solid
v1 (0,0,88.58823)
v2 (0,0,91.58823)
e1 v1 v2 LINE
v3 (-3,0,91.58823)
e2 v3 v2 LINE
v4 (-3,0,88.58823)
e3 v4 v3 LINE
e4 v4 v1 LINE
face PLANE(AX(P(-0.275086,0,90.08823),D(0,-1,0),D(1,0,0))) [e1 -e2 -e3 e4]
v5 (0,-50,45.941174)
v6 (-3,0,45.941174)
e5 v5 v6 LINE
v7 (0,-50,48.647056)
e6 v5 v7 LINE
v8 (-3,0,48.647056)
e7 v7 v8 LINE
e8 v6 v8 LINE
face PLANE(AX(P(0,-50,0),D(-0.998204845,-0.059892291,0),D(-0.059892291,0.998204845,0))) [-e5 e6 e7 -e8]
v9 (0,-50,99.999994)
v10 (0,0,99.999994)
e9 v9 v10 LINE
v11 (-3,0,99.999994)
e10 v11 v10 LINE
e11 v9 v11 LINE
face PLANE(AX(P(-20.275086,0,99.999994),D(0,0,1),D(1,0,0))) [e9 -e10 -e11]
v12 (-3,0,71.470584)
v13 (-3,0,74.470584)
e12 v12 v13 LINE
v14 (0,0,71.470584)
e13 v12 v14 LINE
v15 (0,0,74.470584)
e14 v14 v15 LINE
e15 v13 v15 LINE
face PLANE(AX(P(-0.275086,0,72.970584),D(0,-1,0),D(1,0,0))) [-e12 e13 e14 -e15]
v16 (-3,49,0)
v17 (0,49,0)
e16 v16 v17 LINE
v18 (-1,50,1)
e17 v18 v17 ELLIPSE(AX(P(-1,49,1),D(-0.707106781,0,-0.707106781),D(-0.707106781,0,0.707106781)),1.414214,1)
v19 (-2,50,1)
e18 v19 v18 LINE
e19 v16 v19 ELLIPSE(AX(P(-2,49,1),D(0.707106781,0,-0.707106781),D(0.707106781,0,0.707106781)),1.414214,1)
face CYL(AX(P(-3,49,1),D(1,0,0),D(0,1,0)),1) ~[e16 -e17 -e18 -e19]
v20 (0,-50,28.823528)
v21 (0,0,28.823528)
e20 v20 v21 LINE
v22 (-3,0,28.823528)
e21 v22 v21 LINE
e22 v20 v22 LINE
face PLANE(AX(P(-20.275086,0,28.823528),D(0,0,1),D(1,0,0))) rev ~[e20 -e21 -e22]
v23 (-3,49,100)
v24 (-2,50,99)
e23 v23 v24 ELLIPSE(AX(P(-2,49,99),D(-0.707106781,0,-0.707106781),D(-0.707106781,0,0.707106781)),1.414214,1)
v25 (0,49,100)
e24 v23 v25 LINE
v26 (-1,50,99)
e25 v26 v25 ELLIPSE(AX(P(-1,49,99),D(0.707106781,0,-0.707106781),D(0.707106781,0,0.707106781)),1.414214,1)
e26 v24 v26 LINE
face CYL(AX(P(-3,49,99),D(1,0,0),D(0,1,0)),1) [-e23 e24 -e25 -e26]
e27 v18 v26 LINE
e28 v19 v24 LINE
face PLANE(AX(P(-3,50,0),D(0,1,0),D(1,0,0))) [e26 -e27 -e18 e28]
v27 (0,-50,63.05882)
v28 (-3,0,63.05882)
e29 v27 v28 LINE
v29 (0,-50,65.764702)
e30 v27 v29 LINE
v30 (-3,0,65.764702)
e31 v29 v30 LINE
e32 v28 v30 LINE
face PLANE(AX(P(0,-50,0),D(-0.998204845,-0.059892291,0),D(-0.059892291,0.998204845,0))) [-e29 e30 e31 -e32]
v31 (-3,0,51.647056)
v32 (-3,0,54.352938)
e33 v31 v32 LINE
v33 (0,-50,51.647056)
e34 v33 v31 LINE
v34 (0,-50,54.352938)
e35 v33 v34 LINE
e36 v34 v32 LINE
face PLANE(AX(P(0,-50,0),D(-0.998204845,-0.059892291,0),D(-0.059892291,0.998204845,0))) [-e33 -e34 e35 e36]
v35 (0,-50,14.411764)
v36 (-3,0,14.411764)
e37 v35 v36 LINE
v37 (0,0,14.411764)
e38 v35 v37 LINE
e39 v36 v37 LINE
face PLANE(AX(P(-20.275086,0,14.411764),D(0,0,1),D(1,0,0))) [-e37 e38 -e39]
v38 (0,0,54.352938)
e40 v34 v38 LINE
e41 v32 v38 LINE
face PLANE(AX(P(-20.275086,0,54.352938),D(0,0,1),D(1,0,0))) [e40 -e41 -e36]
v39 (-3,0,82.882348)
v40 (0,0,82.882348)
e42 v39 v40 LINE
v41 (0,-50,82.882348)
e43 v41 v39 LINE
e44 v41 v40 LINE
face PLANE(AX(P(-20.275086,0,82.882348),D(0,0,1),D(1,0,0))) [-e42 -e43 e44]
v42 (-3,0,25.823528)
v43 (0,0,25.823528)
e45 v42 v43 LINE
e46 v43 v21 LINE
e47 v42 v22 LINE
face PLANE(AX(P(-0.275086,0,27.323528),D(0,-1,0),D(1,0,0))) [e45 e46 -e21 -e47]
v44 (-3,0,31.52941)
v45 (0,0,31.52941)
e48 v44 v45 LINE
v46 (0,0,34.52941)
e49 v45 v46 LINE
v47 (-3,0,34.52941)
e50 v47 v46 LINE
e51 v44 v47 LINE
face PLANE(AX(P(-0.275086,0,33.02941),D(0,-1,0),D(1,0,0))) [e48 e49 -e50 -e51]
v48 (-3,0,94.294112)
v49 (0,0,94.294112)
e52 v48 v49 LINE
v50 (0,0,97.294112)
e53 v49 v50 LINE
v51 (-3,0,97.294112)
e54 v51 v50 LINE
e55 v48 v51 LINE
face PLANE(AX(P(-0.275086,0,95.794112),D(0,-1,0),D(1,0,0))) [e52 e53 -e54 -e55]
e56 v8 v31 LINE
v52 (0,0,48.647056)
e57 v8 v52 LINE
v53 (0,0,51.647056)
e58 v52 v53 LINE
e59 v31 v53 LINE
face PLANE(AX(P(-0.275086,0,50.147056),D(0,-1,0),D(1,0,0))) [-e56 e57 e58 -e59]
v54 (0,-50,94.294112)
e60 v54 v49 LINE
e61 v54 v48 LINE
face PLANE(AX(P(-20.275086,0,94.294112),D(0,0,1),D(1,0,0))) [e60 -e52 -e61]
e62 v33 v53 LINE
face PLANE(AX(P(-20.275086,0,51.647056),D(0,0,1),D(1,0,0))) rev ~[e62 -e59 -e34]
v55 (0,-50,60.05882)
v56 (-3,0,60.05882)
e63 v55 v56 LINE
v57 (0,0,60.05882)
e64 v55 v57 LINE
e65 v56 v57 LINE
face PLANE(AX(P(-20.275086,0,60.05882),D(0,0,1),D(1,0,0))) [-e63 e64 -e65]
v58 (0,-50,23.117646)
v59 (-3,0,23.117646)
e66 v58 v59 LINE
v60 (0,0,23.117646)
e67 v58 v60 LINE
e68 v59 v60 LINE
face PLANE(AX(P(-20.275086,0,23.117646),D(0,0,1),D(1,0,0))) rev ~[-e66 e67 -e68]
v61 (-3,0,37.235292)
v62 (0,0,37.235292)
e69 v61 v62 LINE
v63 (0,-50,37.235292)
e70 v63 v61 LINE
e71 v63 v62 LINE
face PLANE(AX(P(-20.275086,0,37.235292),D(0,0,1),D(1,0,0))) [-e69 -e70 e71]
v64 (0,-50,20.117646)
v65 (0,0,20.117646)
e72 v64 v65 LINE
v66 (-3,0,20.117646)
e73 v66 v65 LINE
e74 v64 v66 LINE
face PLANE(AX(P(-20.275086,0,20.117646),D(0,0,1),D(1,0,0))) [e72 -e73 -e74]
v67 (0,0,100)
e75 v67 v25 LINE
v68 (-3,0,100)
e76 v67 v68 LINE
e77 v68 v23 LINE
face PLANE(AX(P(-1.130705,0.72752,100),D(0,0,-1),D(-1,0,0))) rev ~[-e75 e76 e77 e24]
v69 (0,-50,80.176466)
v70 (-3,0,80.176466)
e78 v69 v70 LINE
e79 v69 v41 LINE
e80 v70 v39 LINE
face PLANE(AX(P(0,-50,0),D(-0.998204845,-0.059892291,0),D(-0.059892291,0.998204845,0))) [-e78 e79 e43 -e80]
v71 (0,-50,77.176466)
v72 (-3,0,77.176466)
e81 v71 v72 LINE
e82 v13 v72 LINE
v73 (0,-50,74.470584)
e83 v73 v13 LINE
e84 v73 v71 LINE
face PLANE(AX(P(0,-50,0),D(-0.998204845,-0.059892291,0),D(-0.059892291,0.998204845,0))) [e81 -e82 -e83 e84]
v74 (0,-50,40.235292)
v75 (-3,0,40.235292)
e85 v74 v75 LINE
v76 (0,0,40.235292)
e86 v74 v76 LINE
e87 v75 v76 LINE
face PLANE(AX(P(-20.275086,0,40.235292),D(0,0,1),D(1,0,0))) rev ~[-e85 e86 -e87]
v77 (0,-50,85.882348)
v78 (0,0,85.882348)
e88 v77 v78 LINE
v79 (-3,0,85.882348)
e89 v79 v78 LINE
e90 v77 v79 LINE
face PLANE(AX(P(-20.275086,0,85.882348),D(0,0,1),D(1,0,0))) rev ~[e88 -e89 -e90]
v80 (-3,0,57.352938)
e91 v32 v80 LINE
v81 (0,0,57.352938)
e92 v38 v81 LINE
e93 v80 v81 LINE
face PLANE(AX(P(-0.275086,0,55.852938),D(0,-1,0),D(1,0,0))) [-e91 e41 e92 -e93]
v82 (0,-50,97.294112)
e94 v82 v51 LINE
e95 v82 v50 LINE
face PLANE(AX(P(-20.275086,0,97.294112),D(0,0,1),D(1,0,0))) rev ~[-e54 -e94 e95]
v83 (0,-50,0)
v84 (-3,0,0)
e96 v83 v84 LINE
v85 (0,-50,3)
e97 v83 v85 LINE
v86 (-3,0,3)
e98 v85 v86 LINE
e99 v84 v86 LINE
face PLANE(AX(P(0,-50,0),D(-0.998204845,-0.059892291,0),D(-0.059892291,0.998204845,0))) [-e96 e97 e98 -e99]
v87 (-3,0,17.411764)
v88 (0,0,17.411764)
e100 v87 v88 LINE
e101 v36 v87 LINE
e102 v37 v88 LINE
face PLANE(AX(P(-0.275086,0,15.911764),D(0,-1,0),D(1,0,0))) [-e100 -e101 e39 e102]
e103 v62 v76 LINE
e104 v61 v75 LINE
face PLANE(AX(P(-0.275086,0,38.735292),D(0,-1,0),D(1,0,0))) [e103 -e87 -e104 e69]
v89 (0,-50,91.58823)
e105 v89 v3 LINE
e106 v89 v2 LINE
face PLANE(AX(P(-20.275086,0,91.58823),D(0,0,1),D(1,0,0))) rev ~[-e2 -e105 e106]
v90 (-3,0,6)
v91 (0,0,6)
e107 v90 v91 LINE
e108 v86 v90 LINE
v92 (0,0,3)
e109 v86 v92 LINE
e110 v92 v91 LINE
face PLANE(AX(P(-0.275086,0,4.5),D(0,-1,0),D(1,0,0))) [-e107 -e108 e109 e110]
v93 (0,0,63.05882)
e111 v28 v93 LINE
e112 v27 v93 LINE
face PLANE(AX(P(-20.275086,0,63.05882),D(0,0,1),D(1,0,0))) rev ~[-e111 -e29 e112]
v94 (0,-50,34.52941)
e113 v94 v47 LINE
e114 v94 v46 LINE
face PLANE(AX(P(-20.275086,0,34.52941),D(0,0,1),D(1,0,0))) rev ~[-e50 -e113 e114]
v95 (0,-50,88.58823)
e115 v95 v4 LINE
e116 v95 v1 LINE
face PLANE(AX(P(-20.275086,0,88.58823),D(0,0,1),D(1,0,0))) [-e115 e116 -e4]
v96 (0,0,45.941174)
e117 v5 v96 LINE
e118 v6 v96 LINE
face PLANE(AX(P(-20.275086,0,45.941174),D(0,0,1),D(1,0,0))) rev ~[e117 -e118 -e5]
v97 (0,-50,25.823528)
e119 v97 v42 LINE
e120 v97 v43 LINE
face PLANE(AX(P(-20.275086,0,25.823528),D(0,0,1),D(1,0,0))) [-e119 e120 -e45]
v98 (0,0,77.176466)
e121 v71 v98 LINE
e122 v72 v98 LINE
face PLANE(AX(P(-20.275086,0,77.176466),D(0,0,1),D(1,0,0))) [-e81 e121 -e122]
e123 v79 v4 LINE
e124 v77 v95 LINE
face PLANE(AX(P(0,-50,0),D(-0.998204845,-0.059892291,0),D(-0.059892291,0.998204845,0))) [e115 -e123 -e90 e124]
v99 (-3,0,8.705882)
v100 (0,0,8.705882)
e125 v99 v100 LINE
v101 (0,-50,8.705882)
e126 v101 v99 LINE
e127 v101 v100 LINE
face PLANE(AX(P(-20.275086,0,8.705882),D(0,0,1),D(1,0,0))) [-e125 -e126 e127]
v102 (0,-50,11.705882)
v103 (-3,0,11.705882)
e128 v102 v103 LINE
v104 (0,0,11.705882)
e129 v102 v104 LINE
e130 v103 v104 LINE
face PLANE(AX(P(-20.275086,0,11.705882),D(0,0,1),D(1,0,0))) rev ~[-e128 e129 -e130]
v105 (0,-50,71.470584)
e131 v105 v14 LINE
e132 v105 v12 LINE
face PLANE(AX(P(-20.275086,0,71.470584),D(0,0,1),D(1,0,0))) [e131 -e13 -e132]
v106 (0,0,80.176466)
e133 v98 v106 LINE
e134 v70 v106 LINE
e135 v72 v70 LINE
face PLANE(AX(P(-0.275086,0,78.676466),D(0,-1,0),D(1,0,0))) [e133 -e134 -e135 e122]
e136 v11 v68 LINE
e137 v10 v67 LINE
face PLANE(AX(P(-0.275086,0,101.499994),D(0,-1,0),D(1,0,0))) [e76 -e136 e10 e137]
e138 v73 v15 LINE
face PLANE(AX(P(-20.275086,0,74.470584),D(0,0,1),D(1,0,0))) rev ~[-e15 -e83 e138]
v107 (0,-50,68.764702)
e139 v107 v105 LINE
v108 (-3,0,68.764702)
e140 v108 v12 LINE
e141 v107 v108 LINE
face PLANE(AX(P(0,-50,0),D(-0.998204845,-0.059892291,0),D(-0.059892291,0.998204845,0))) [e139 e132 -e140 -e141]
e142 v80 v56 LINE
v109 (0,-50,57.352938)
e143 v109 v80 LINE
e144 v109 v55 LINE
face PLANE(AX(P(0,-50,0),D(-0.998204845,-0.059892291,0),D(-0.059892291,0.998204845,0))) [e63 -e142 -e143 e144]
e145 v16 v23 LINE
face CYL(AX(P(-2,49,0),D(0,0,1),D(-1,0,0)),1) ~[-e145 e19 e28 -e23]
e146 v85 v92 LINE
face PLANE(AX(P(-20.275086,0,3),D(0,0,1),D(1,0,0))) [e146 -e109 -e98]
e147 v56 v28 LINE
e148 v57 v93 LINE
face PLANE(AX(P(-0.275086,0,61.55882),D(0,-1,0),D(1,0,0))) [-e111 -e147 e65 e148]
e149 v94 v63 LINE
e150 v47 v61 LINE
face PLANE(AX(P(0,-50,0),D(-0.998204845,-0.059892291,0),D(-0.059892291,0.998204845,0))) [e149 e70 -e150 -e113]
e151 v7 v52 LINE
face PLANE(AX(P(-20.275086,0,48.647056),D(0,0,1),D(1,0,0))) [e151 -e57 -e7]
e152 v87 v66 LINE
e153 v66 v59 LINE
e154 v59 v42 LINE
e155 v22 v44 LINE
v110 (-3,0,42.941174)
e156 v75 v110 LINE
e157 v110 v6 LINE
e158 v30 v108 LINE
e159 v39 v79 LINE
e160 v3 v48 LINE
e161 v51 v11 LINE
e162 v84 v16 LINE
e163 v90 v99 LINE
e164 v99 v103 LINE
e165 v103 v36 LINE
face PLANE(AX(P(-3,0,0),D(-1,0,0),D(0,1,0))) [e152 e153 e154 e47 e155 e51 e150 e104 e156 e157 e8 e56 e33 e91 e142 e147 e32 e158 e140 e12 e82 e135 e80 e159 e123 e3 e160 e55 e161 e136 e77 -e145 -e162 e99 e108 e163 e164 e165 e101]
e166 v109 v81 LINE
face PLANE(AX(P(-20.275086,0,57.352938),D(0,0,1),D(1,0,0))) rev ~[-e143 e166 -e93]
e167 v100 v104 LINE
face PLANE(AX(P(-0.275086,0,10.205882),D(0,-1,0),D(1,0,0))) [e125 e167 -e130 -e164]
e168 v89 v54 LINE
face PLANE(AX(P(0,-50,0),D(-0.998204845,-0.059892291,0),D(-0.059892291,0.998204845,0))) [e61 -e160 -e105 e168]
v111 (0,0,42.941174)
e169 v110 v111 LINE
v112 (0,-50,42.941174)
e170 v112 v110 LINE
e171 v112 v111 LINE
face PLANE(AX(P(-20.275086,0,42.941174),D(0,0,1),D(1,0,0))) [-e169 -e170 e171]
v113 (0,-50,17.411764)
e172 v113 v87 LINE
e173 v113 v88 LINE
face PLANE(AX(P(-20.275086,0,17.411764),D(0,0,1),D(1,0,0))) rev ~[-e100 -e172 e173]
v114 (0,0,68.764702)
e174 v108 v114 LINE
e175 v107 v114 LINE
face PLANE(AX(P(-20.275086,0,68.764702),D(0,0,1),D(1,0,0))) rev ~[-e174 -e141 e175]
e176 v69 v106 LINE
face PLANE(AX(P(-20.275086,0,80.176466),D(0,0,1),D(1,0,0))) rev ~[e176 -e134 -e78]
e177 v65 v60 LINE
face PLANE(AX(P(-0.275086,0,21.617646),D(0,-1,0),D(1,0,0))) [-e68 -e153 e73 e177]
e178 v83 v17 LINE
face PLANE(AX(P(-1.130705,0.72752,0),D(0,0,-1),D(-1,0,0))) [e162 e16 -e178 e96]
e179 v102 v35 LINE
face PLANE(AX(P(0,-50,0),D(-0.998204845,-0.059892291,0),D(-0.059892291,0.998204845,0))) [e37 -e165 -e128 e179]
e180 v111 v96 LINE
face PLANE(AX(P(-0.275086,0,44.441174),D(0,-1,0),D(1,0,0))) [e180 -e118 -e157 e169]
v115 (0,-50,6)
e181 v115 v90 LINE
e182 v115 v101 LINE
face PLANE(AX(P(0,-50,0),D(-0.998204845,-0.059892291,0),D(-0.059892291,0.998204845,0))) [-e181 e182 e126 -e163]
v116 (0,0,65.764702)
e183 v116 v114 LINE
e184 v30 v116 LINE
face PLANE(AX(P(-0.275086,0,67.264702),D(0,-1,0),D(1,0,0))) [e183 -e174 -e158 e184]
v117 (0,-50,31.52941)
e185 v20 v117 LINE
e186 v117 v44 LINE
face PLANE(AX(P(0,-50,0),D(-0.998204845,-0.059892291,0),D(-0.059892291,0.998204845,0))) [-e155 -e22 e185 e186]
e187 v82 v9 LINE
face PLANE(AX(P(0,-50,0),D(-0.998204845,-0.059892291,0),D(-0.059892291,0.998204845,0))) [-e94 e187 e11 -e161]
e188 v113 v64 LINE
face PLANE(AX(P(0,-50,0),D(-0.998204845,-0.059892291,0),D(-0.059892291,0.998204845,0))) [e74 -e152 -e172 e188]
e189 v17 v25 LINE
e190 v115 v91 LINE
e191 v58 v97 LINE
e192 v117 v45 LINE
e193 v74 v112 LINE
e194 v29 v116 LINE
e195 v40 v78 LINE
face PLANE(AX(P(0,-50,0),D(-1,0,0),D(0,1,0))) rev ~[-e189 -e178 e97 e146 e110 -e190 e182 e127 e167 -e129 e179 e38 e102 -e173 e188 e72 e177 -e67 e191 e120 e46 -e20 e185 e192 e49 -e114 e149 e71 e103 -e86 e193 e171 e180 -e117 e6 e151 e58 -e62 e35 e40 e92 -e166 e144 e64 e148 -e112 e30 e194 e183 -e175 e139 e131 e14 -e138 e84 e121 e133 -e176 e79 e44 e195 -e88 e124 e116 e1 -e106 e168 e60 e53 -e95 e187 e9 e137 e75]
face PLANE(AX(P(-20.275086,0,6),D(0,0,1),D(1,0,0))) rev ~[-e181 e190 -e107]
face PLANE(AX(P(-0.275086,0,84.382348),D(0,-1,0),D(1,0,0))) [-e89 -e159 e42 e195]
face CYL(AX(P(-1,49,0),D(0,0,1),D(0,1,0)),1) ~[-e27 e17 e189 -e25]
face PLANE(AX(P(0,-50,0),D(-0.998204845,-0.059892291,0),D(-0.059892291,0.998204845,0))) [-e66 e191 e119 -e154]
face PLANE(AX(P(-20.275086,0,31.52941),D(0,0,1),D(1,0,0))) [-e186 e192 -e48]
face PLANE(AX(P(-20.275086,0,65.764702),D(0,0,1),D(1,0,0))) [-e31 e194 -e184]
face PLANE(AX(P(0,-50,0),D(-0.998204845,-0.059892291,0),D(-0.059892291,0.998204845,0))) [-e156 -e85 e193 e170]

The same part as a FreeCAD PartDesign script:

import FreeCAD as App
import Part
import Sketcher

V = App.Vector


def edges_at(feature, points):
    """Names of the edges that pass closest to the given points."""
    edges = feature.Shape.Edges
    near = lambda p: min(range(len(edges)), key=lambda i: edges[i].distToShape(Part.Vertex(*p))[0])
    return sorted({f"Edge{near(p) + 1}" for p in points})


def add_polygon(sketch, points):
    """Adds a closed chain of lines whose ends are joined by coincident constraints."""
    first, n = sketch.GeometryCount, len(points)
    for a, b in zip(points, points[1:] + points[:1]):
        sketch.addGeometry(Part.LineSegment(App.Vector(*a, 0), App.Vector(*b, 0)), False)
    for i in range(n):
        sketch.addConstraint(Sketcher.Constraint("Coincident", first + i, 2, first + (i + 1) % n, 1))

doc = App.newDocument("Part")
body = doc.addObject("PartDesign::Body", "Body")

sketch1 = doc.addObject("Sketcher::SketchObject", "Sketch")
body.addObject(sketch1)
sketch1.AttachmentSupport = (doc.XY_Plane, [""])
sketch1.MapMode = "FlatFace"
add_polygon(sketch1, [(-3, 50), (-3, 0), (0, -50), (0, 50)])
sketch1.addConstraint(Sketcher.Constraint("Vertical", 0))
sketch1.addConstraint(Sketcher.Constraint("Vertical", 2))
sketch1.addConstraint(Sketcher.Constraint("Horizontal", 3))
sketch1.addConstraint(Sketcher.Constraint("Symmetric", 1, 2, 2, 2, -1, 1))
sketch1.addConstraint(Sketcher.Constraint("PointOnObject", 0, 2, -1))
sketch1.addConstraint(Sketcher.Constraint("DistanceX", 3, 2, 3, 1, 3.0))
sketch1.addConstraint(Sketcher.Constraint("DistanceY", 0, 2, 0, 1, 50.0))
pad1 = doc.addObject("PartDesign::Pad", "Pad")
body.addObject(pad1)
pad1.Profile = sketch1
pad1.Length = 100

sketch2 = doc.addObject("Sketcher::SketchObject", "Sketch001")
body.addObject(sketch2)
sketch2.AttachmentSupport = (doc.XZ_Plane, [""])
sketch2.MapMode = "FlatFace"
add_polygon(sketch2, [(-20.3, 6), (-20.3, 3), (19.7, 3), (19.7, 6)])
sketch2.addConstraint(Sketcher.Constraint("Vertical", 0))
sketch2.addConstraint(Sketcher.Constraint("Horizontal", 1))
sketch2.addConstraint(Sketcher.Constraint("Vertical", 2))
sketch2.addConstraint(Sketcher.Constraint("Horizontal", 3))
sketch2.addConstraint(Sketcher.Constraint("DistanceX", 1, 1, 1, 2, 40.0))
sketch2.addConstraint(Sketcher.Constraint("DistanceY", 0, 2, 0, 1, 3.0))
sketch2.addConstraint(Sketcher.Constraint("DistanceY", -1, 1, 0, 2, 3.0))
sketch2.addConstraint(Sketcher.Constraint("DistanceX", 0, 2, -1, 1, 20.275086))
pocket1 = doc.addObject("PartDesign::Pocket", "Pocket")
body.addObject(pocket1)
pocket1.Profile = sketch2
pocket1.Length = 60
pocket1.Reversed = True
doc.recompute()

linearpattern = doc.addObject("PartDesign::LinearPattern", "LinearPattern")
body.addObject(linearpattern)
linearpattern.Originals = [pocket1]
linearpattern.Direction = (doc.Z_Axis, [""])
linearpattern.Mode = "offset"
linearpattern.Offset = 5.705882
linearpattern.Occurrences = 18
body.Tip = linearpattern
doc.recompute()

fillet = doc.addObject("PartDesign::Fillet", "Fillet")
body.addObject(fillet)
fillet.Base = (linearpattern, edges_at(linearpattern, [
    (-3, 50, 50),
    (0, 50, 50),
    (-1.5, 50, 0),
    (-1.5, 50, 100),
]))
fillet.Radius = 1

doc.recompute()
